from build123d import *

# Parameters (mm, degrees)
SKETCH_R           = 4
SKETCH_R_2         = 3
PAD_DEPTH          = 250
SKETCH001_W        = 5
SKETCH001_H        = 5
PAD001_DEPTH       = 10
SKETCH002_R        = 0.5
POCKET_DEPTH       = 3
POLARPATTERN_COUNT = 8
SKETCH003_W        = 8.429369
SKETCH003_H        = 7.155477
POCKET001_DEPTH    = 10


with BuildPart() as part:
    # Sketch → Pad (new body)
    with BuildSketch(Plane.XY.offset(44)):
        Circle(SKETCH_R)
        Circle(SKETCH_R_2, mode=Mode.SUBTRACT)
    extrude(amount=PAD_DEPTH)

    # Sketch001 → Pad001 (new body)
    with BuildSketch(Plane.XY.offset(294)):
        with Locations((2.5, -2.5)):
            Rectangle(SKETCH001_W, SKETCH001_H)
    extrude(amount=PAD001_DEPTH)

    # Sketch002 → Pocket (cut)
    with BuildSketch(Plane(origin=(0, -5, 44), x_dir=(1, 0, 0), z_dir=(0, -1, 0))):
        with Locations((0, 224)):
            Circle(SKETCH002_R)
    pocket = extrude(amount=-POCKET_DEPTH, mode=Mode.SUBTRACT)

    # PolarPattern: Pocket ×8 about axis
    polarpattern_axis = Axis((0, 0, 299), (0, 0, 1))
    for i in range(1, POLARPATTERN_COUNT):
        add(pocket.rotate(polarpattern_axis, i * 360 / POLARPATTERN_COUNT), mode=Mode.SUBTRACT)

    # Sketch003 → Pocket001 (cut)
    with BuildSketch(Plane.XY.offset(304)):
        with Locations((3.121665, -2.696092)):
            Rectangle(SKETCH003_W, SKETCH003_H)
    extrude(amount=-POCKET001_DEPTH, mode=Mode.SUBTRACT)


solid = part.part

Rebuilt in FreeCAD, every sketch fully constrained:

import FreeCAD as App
import Part
import Sketcher
from FreeCAD import Vector


def add_polygon(sketch, points):
    """Adds a closed chain of lines whose ends are joined by coincident constraints."""
    first, n = sketch.GeometryCount, len(points)
    for a, b in zip(points, points[1:] + points[:1]):
        sketch.addGeometry(Part.LineSegment(App.Vector(*a, 0), App.Vector(*b, 0)), False)
    for i in range(n):
        sketch.addConstraint(Sketcher.Constraint("Coincident", first + i, 2, first + (i + 1) % n, 1))

doc = App.newDocument("Part")
params = doc.addObject("Spreadsheet::Sheet", "Params")
for row, (alias, value) in enumerate([
    ("sketch1_diameter", "8 mm"),
    ("sketch1_diameter2", "6 mm"),
    ("pad1_length", "250 mm"),
    ("sketch2_width", "5 mm"),
    ("pad2_length", "10 mm"),
    ("sketch3_diameter", "1 mm"),
    ("pocket1_length", "3 mm"),
    ("pocket2_length", "10 mm"),
], start=1):
    params.set(f"A{row}", alias)
    params.set(f"B{row}", "=" + value)
    params.setAlias(f"B{row}", alias)

body = doc.addObject("PartDesign::Body", "Body")

# Sketch on XY plane
sketch1 = body.newObject("Sketcher::SketchObject", "Sketch")
sketch1.AttachmentSupport = (doc.getObject("XY_Plane"), [""])
sketch1.MapMode = "FlatFace"
sketch1.AttachmentOffset = App.Placement(Vector(0, 0, 44), App.Rotation())
sketch1.addGeometry([
    Part.Circle(Vector(0, 0, 0), Vector(0, 0, 1), 4),
    Part.Circle(Vector(0, 0, 0), Vector(0, 0, 1), 3),
], False)
sketch1.addConstraint([
    Sketcher.Constraint("Coincident", 0, 3, -1, 1),
    Sketcher.Constraint("Coincident", 1, 3, -1, 1),
    Sketcher.Constraint("Diameter", 0, 8.0),
    Sketcher.Constraint("Diameter", 1, 6.0),
])
sketch1.setExpression("Constraints[2]", "Params.sketch1_diameter")
sketch1.setExpression("Constraints[3]", "Params.sketch1_diameter2")
pad1 = body.newObject("PartDesign::Pad", "Pad")
pad1.Profile = sketch1
pad1.setExpression("Length", "Params.pad1_length")

# Sketch on XY plane
sketch2 = body.newObject("Sketcher::SketchObject", "Sketch001")
sketch2.AttachmentSupport = (doc.getObject("XY_Plane"), [""])
sketch2.MapMode = "FlatFace"
sketch2.AttachmentOffset = App.Placement(Vector(0, 0, 294), App.Rotation())
add_polygon(sketch2, [(0, 0), (0, -5), (5, -5), (5, 0)])  # lines 0-3
sketch2.addConstraint([
    Sketcher.Constraint("Vertical", 0),
    Sketcher.Constraint("Horizontal", 1),
    Sketcher.Constraint("Vertical", 2),
    Sketcher.Constraint("Horizontal", 3),
    Sketcher.Constraint("Coincident", 3, 2, -1, 1),
    Sketcher.Constraint("Equal", 3, 0),
    Sketcher.Constraint("DistanceX", 1, 1, 1, 2, 5.0),
])
sketch2.setExpression("Constraints[10]", "Params.sketch2_width")
pad2 = body.newObject("PartDesign::Pad", "Pad001")
pad2.Profile = sketch2
pad2.setExpression("Length", "Params.pad2_length")

# Sketch on XZ plane
sketch3 = body.newObject("Sketcher::SketchObject", "Sketch002")
sketch3.AttachmentSupport = (doc.getObject("XZ_Plane"), [""])
sketch3.MapMode = "FlatFace"
sketch3.AttachmentOffset = App.Placement(Vector(0, 0, 5), App.Rotation())
sketch3.addGeometry(Part.Circle(Vector(0, 268, 0), Vector(0, 0, 1), 0.5), False)
sketch3.addConstraint([
    Sketcher.Constraint("PointOnObject", 0, 3, -2),
    Sketcher.Constraint("Diameter", 0, 1.0),
    Sketcher.Constraint("DistanceY", -1, 1, 0, 3, 268.0),
])
sketch3.setExpression("Constraints[1]", "Params.sketch3_diameter")
pocket1 = body.newObject("PartDesign::Pocket", "Pocket")
pocket1.Profile = sketch3
pocket1.setExpression("Length", "Params.pocket1_length")
doc.recompute()

polarpattern = body.newObject("PartDesign::PolarPattern", "PolarPattern")
polarpattern.Originals = [pocket1]
polarpattern.Axis = (doc.getObject("Z_Axis"), [""])
polarpattern.Angle = 360
polarpattern.Occurrences = 8
body.Tip = polarpattern

# Sketch on XY plane
sketch4 = body.newObject("Sketcher::SketchObject", "Sketch003")
sketch4.AttachmentSupport = (doc.getObject("XY_Plane"), [""])
sketch4.MapMode = "FlatFace"
sketch4.AttachmentOffset = App.Placement(Vector(0, 0, 304), App.Rotation())
add_polygon(sketch4, [(-1, 1), (-1, -6), (7, -6), (7, 1)])  # lines 0-3
sketch4.addConstraint([
    Sketcher.Constraint("Vertical", 0),
    Sketcher.Constraint("Horizontal", 1),
    Sketcher.Constraint("Vertical", 2),
    Sketcher.Constraint("Horizontal", 3),
    Sketcher.Constraint("DistanceX", 1, 1, 1, 2, 8.429369),
    Sketcher.Constraint("DistanceY", 0, 2, 0, 1, 7.155477),
    Sketcher.Constraint("DistanceX", 0, 2, -1, 1, 1.09302),
    Sketcher.Constraint("DistanceY", 0, 2, -1, 1, 6.27383),
])
pocket2 = body.newObject("PartDesign::Pocket", "Pocket001")
pocket2.Profile = sketch4
pocket2.setExpression("Length", "Params.pocket2_length")

doc.recompute()
